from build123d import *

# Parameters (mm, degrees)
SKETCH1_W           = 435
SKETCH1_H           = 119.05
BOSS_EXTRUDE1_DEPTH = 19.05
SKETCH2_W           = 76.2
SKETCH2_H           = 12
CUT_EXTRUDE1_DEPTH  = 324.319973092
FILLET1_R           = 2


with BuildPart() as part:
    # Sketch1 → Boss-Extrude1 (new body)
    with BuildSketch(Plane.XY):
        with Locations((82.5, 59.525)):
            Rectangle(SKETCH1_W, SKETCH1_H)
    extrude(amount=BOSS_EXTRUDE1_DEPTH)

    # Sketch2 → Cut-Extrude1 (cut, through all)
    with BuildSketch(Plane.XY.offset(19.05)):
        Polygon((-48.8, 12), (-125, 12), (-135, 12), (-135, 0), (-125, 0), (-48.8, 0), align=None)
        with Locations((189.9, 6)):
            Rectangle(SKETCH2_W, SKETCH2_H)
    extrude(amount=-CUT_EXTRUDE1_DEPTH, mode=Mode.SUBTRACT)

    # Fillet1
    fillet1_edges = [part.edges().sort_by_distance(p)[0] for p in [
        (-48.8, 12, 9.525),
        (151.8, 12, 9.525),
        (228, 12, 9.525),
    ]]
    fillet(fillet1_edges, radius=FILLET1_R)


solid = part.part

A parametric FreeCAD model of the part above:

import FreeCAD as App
import Part
import Sketcher
from FreeCAD import Vector


def edges_at(feature, points):
    """Names of the edges that pass closest to the given points."""
    edges = feature.Shape.Edges
    near = lambda p: min(range(len(edges)), key=lambda i: edges[i].distToShape(Part.Vertex(*p))[0])
    return sorted({f"Edge{near(p) + 1}" for p in points})

doc = App.newDocument("Part")
body = doc.addObject("PartDesign::Body", "Body")

sketch1 = body.newObject("Sketcher::SketchObject", "Sketch")
sketch1.AttachmentSupport = (doc.getObject("XY_Plane"), [""])
sketch1.MapMode = "FlatFace"
sketch1.addGeometry([
    Part.LineSegment(Vector(-135, 119, 0), Vector(-135, 0, 0)),
    Part.LineSegment(Vector(-135, 0, 0), Vector(300, 0, 0)),
    Part.LineSegment(Vector(300, 0, 0), Vector(300, 119, 0)),
    Part.LineSegment(Vector(300, 119, 0), Vector(-135, 119, 0)),
], False)
sketch1.addConstraint([
    Sketcher.Constraint("Coincident", 0, 2, 1, 1),
    Sketcher.Constraint("Coincident", 1, 2, 2, 1),
    Sketcher.Constraint("Coincident", 2, 2, 3, 1),
    Sketcher.Constraint("Coincident", 3, 2, 0, 1),
    Sketcher.Constraint("Vertical", 0),
    Sketcher.Constraint("Horizontal", 1),
    Sketcher.Constraint("Vertical", 2),
    Sketcher.Constraint("Horizontal", 3),
    Sketcher.Constraint("PointOnObject", 0, 2, -1),
    Sketcher.Constraint("DistanceX", 1, 1, 1, 2, 435.0),
    Sketcher.Constraint("DistanceX", 0, 2, -1, 1, 135.0),
    Sketcher.Constraint("DistanceY", 0, 2, 0, 1, 119.05),
])
pad1 = body.newObject("PartDesign::Pad", "Pad")
pad1.Profile = sketch1
pad1.Length = 19.05

sketch2 = body.newObject("Sketcher::SketchObject", "Sketch001")
sketch2.AttachmentSupport = (doc.getObject("XY_Plane"), [""])
sketch2.MapMode = "FlatFace"
sketch2.AttachmentOffset = App.Placement(Vector(0, 0, 19.05), App.Rotation())
sketch2.addGeometry([
    Part.LineSegment(Vector(-49, 12, 0), Vector(-135, 12, 0)),
    Part.LineSegment(Vector(-135, 12, 0), Vector(-135, 0, 0)),
    Part.LineSegment(Vector(-135, 0, 0), Vector(-49, 0, 0)),
    Part.LineSegment(Vector(-49, 0, 0), Vector(-49, 12, 0)),
    Part.LineSegment(Vector(152, 12, 0), Vector(152, 0, 0)),
    Part.LineSegment(Vector(152, 0, 0), Vector(228, 0, 0)),
    Part.LineSegment(Vector(228, 0, 0), Vector(228, 12, 0)),
    Part.LineSegment(Vector(228, 12, 0), Vector(152, 12, 0)),
], False)
sketch2.addConstraint([
    Sketcher.Constraint("Coincident", 0, 2, 1, 1),
    Sketcher.Constraint("Coincident", 1, 2, 2, 1),
    Sketcher.Constraint("Coincident", 2, 2, 3, 1),
    Sketcher.Constraint("Coincident", 3, 2, 0, 1),
    Sketcher.Constraint("Coincident", 4, 2, 5, 1),
    Sketcher.Constraint("Coincident", 5, 2, 6, 1),
    Sketcher.Constraint("Coincident", 6, 2, 7, 1),
    Sketcher.Constraint("Coincident", 7, 2, 4, 1),
    Sketcher.Constraint("Horizontal", 0),
    Sketcher.Constraint("Vertical", 1),
    Sketcher.Constraint("Horizontal", 2),
    Sketcher.Constraint("Vertical", 3),
    Sketcher.Constraint("Vertical", 4),
    Sketcher.Constraint("Horizontal", 5),
    Sketcher.Constraint("Vertical", 6),
    Sketcher.Constraint("Horizontal", 7),
    Sketcher.Constraint("PointOnObject", 1, 2, -1),
    Sketcher.Constraint("PointOnObject", 4, 2, -1),
    Sketcher.Constraint("Horizontal", 3, 2, 6, 2),
    Sketcher.Constraint("DistanceY", 1, 2, 1, 1, 12.0),
    Sketcher.Constraint("DistanceX", 0, 2, 0, 1, 86.2),
    Sketcher.Constraint("DistanceX", 5, 1, 5, 2, 76.2),
    Sketcher.Constraint("DistanceX", 0, 2, -1, 1, 135.0),
    Sketcher.Constraint("DistanceX", -1, 1, 5, 2, 228.0),
])
pocket1 = body.newObject("PartDesign::Pocket", "Pocket")
pocket1.Profile = sketch2
pocket1.Type = "ThroughAll"
doc.recompute()

fillet = body.newObject("PartDesign::Fillet", "Fillet")
fillet.Base = (pocket1, edges_at(pocket1, [(-48.8, 12, 9.525), (151.8, 12, 9.525), (228, 12, 9.525)]))
fillet.Radius = 2

doc.recompute()
